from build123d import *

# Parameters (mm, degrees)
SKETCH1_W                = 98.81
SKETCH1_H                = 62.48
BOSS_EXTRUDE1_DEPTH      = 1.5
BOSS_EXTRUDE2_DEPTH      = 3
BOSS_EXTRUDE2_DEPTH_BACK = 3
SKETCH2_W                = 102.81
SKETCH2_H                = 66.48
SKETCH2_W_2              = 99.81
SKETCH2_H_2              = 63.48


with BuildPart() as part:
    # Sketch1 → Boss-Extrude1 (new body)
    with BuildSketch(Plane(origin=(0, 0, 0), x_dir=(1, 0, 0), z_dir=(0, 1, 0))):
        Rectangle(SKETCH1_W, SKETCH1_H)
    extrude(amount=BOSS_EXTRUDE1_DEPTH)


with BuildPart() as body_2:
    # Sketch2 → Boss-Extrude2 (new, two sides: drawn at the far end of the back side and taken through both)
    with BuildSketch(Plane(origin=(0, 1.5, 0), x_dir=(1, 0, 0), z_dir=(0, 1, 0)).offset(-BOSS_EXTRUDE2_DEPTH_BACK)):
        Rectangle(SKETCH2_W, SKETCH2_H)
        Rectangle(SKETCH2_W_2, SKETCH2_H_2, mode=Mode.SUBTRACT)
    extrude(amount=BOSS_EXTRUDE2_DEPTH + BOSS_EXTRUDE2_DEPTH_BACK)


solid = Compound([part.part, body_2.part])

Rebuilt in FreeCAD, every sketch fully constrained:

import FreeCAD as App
import Part
import Sketcher


def add_polygon(sketch, points):
    """Adds a closed chain of lines whose ends are joined by coincident constraints."""
    first, n = sketch.GeometryCount, len(points)
    for a, b in zip(points, points[1:] + points[:1]):
        sketch.addGeometry(Part.LineSegment(App.Vector(*a, 0), App.Vector(*b, 0)), False)
    for i in range(n):
        sketch.addConstraint(Sketcher.Constraint("Coincident", first + i, 2, first + (i + 1) % n, 1))

doc = App.newDocument("Part")
params = doc.addObject("Spreadsheet::Sheet", "Params")
for row, (alias, value) in enumerate([
    ("sketch1_width", "98.81 mm"),
    ("sketch1_height", "62.48 mm"),
    ("pad1_length", "1.5 mm"),
    ("sketch2_width", "102.81 mm"),
    ("sketch2_width2", "99.81 mm"),
    ("sketch2_height", "66.48 mm"),
    ("sketch2_height2", "63.48 mm"),
    ("pad2_length", "3 mm"),
    ("pad2_length2", "3 mm"),
], start=1):
    params.set(f"A{row}", alias)
    params.set(f"B{row}", "=" + value)
    params.setAlias(f"B{row}", alias)

body = doc.addObject("PartDesign::Body", "Body")

# Sketch on XZ plane
sketch1 = body.newObject("Sketcher::SketchObject", "Sketch")
sketch1.AttachmentSupport = (doc.getObject("XZ_Plane"), [""])
sketch1.MapMode = "FlatFace"
add_polygon(sketch1, [(-49.405, -31.24), (-49.405, 31.24), (49.405, 31.24), (49.405, -31.24)])  # lines 0-3
sketch1.addConstraint(Sketcher.Constraint("Vertical", 0))
sketch1.addConstraint(Sketcher.Constraint("Horizontal", 1))
sketch1.addConstraint(Sketcher.Constraint("Vertical", 2))
sketch1.addConstraint(Sketcher.Constraint("Horizontal", 3))
sketch1.addConstraint(Sketcher.Constraint("Symmetric", 0, 2, 2, 2, -1, 1))
sketch1.addConstraint(Sketcher.Constraint("DistanceX", 1, 1, 1, 2, 98.81))
sketch1.addConstraint(Sketcher.Constraint("DistanceY", 0, 1, 0, 2, 62.48))
sketch1.setExpression("Constraints[9]", "Params.sketch1_width")
sketch1.setExpression("Constraints[10]", "Params.sketch1_height")
pad1 = body.newObject("PartDesign::Pad", "Pad")
pad1.Profile = sketch1
pad1.setExpression("Length", "Params.pad1_length")
pad1.Reversed = True
body2 = doc.addObject("PartDesign::Body", "Body001")

# Sketch on XZ plane
sketch2 = body2.newObject("Sketcher::SketchObject", "Sketch001")
sketch2.AttachmentSupport = (doc.getObject("XZ_Plane001"), [""])
sketch2.MapMode = "FlatFace"
sketch2.AttachmentOffset = App.Placement(App.Vector(0, 0, -1.5), App.Rotation())
add_polygon(sketch2, [(-51.405, -33.24), (-51.405, 33.24), (51.405, 33.24), (51.405, -33.24)])  # lines 0-3
add_polygon(sketch2, [(49.905, 31.74), (-49.905, 31.74), (-49.905, -31.74), (49.905, -31.74)])  # lines 4-7
sketch2.addConstraint(Sketcher.Constraint("Vertical", 0))
sketch2.addConstraint(Sketcher.Constraint("Horizontal", 1))
sketch2.addConstraint(Sketcher.Constraint("Vertical", 2))
sketch2.addConstraint(Sketcher.Constraint("Horizontal", 3))
sketch2.addConstraint(Sketcher.Constraint("Horizontal", 4))
sketch2.addConstraint(Sketcher.Constraint("Vertical", 5))
sketch2.addConstraint(Sketcher.Constraint("Horizontal", 6))
sketch2.addConstraint(Sketcher.Constraint("Vertical", 7))
sketch2.addConstraint(Sketcher.Constraint("Symmetric", 0, 2, 2, 2, -1, 1))
sketch2.addConstraint(Sketcher.Constraint("Symmetric", 4, 2, 6, 2, -1, 1))
sketch2.addConstraint(Sketcher.Constraint("DistanceX", 1, 1, 1, 2, 102.81))
sketch2.addConstraint(Sketcher.Constraint("DistanceX", 4, 2, 4, 1, 99.81))
sketch2.addConstraint(Sketcher.Constraint("DistanceY", 0, 1, 0, 2, 66.48))
sketch2.addConstraint(Sketcher.Constraint("DistanceY", 5, 2, 5, 1, 63.48))
sketch2.setExpression("Constraints[18]", "Params.sketch2_width")
sketch2.setExpression("Constraints[19]", "Params.sketch2_width2")
sketch2.setExpression("Constraints[20]", "Params.sketch2_height")
sketch2.setExpression("Constraints[21]", "Params.sketch2_height2")
pad2 = body2.newObject("PartDesign::Pad", "Pad001")
pad2.Profile = sketch2
pad2.Type = "TwoLengths"
pad2.setExpression("Length", "Params.pad2_length")
pad2.setExpression("Length2", "Params.pad2_length2")
pad2.Reversed = True

doc.recompute()
